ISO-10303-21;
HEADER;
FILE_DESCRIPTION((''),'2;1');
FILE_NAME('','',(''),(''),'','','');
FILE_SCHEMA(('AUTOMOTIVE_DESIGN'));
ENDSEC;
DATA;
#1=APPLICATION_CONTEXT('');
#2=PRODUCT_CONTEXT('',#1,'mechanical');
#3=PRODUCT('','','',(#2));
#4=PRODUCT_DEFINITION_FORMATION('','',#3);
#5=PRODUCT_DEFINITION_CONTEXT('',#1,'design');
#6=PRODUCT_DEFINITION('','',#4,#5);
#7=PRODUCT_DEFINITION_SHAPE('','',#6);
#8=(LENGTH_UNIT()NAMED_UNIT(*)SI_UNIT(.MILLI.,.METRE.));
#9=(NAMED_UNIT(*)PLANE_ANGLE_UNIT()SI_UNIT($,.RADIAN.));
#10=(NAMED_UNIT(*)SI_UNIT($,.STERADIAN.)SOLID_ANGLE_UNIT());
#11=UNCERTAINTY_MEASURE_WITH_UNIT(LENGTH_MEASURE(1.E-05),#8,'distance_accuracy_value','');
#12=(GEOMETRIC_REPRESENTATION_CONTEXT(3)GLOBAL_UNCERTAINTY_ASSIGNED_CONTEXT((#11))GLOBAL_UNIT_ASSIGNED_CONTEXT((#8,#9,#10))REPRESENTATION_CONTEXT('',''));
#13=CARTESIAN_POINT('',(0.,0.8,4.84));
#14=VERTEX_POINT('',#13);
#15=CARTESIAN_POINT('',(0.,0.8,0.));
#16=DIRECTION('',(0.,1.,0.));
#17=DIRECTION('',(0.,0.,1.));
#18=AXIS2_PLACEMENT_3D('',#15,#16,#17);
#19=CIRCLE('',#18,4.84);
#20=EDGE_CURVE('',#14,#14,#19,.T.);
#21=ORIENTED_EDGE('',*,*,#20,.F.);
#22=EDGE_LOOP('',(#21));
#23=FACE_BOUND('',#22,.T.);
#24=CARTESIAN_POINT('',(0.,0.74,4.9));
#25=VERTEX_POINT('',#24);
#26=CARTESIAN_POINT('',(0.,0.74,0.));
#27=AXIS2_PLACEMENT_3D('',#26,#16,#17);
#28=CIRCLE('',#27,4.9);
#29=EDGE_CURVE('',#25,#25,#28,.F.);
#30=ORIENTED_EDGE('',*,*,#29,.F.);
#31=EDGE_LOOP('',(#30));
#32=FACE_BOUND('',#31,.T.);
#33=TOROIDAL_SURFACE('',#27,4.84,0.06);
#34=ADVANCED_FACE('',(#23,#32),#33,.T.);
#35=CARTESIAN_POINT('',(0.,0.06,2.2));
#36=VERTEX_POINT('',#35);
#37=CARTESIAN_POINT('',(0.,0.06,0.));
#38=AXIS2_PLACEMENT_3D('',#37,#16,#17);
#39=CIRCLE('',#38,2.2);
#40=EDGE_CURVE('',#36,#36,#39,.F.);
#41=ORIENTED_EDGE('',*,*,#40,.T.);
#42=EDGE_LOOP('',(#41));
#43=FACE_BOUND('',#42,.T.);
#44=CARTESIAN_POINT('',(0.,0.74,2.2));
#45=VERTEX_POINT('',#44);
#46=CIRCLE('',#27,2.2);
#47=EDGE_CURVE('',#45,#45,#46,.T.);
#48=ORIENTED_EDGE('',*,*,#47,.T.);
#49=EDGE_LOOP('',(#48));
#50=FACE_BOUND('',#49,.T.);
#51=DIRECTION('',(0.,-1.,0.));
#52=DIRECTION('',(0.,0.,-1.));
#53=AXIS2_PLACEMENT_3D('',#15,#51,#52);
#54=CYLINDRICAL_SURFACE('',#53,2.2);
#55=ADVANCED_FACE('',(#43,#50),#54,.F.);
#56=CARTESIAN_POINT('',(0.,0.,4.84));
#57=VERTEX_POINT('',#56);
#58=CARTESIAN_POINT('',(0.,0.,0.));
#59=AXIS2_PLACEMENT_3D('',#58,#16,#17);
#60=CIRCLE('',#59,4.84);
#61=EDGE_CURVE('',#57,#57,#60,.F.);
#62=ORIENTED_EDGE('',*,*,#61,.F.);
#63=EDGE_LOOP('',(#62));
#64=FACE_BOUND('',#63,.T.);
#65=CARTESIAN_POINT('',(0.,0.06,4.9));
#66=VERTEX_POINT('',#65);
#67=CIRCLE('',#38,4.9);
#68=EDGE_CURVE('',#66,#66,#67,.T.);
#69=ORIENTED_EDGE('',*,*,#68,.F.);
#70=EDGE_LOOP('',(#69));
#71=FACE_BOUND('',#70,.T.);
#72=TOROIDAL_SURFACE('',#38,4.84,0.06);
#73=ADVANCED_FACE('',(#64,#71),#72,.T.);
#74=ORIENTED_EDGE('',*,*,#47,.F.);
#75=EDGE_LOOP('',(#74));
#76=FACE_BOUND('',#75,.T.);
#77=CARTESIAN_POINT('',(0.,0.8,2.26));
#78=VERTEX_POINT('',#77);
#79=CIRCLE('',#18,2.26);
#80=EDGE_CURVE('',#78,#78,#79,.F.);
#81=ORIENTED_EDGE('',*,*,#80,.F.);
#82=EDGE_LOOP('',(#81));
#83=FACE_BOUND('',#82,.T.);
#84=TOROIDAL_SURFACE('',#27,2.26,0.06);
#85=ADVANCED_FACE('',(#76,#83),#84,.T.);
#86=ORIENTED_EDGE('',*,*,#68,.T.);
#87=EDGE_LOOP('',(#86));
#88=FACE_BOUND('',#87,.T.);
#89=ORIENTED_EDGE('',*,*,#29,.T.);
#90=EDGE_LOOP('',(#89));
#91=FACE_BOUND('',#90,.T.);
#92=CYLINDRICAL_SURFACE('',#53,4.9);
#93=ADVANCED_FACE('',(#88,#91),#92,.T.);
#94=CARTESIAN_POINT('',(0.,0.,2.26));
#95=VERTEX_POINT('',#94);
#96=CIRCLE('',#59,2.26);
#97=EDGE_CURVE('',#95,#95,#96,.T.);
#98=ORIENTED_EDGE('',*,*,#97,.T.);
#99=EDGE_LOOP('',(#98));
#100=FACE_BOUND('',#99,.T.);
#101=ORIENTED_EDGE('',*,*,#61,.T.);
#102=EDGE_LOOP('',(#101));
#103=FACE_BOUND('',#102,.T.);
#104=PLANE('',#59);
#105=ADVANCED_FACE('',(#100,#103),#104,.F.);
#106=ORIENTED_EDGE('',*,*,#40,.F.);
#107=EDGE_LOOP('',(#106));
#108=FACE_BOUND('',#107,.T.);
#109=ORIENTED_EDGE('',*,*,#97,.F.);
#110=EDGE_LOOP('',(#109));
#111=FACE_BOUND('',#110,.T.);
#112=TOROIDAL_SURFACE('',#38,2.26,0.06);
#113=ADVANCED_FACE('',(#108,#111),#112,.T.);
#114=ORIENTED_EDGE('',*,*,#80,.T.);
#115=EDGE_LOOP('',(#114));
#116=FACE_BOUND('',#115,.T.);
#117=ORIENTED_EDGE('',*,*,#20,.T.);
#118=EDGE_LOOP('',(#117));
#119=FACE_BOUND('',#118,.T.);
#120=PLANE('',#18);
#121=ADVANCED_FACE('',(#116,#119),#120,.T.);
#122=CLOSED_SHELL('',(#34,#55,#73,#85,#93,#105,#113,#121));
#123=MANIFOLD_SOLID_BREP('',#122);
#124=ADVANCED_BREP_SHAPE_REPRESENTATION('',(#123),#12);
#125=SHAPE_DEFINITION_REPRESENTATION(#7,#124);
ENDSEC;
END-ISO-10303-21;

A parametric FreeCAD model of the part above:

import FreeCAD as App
import Part
import Sketcher

V = App.Vector
Q = App.Units.Quantity


def edges_at(feature, points):
    """Names of the edges that pass closest to the given points."""
    edges = feature.Shape.Edges
    near = lambda p: min(range(len(edges)), key=lambda i: edges[i].distToShape(Part.Vertex(*p))[0])
    return sorted({f"Edge{near(p) + 1}" for p in points})

doc = App.newDocument("Part")
body = doc.addObject("PartDesign::Body", "Body")

sketch1 = doc.addObject("Sketcher::SketchObject", "Sketch")
body.addObject(sketch1)
sketch1.AttachmentSupport = (doc.XZ_Plane, [""])
sketch1.MapMode = "FlatFace"
sketch1.addGeometry(Part.Circle(V(0, 0, 0), V(0, 0, 1), 4.9), False)
sketch1.addGeometry(Part.Circle(V(0, 0, 0), V(0, 0, 1), 2.2), False)
sketch1.addConstraint(Sketcher.Constraint("Coincident", 0, 3, -1, 1))
sketch1.addConstraint(Sketcher.Constraint("Coincident", 1, 3, -1, 1))
sketch1.addConstraint(Sketcher.Constraint("Diameter", 0, Q("9.8 mm")))
sketch1.addConstraint(Sketcher.Constraint("Diameter", 1, Q("4.4 mm")))
pad1 = doc.addObject("PartDesign::Pad", "Pad")
body.addObject(pad1)
pad1.Profile = sketch1
pad1.Length = 0.8
pad1.Reversed = True
doc.recompute()

fillet = doc.addObject("PartDesign::Fillet", "Fillet")
body.addObject(fillet)
fillet.Base = (pad1, edges_at(pad1, [
    (-4.9, 0, 0),
    (-4.9, 0.8, 0),
    (-2.2, 0, 0),
    (-2.2, 0.8, 0),
]))
fillet.Radius = 0.06

doc.recompute()
